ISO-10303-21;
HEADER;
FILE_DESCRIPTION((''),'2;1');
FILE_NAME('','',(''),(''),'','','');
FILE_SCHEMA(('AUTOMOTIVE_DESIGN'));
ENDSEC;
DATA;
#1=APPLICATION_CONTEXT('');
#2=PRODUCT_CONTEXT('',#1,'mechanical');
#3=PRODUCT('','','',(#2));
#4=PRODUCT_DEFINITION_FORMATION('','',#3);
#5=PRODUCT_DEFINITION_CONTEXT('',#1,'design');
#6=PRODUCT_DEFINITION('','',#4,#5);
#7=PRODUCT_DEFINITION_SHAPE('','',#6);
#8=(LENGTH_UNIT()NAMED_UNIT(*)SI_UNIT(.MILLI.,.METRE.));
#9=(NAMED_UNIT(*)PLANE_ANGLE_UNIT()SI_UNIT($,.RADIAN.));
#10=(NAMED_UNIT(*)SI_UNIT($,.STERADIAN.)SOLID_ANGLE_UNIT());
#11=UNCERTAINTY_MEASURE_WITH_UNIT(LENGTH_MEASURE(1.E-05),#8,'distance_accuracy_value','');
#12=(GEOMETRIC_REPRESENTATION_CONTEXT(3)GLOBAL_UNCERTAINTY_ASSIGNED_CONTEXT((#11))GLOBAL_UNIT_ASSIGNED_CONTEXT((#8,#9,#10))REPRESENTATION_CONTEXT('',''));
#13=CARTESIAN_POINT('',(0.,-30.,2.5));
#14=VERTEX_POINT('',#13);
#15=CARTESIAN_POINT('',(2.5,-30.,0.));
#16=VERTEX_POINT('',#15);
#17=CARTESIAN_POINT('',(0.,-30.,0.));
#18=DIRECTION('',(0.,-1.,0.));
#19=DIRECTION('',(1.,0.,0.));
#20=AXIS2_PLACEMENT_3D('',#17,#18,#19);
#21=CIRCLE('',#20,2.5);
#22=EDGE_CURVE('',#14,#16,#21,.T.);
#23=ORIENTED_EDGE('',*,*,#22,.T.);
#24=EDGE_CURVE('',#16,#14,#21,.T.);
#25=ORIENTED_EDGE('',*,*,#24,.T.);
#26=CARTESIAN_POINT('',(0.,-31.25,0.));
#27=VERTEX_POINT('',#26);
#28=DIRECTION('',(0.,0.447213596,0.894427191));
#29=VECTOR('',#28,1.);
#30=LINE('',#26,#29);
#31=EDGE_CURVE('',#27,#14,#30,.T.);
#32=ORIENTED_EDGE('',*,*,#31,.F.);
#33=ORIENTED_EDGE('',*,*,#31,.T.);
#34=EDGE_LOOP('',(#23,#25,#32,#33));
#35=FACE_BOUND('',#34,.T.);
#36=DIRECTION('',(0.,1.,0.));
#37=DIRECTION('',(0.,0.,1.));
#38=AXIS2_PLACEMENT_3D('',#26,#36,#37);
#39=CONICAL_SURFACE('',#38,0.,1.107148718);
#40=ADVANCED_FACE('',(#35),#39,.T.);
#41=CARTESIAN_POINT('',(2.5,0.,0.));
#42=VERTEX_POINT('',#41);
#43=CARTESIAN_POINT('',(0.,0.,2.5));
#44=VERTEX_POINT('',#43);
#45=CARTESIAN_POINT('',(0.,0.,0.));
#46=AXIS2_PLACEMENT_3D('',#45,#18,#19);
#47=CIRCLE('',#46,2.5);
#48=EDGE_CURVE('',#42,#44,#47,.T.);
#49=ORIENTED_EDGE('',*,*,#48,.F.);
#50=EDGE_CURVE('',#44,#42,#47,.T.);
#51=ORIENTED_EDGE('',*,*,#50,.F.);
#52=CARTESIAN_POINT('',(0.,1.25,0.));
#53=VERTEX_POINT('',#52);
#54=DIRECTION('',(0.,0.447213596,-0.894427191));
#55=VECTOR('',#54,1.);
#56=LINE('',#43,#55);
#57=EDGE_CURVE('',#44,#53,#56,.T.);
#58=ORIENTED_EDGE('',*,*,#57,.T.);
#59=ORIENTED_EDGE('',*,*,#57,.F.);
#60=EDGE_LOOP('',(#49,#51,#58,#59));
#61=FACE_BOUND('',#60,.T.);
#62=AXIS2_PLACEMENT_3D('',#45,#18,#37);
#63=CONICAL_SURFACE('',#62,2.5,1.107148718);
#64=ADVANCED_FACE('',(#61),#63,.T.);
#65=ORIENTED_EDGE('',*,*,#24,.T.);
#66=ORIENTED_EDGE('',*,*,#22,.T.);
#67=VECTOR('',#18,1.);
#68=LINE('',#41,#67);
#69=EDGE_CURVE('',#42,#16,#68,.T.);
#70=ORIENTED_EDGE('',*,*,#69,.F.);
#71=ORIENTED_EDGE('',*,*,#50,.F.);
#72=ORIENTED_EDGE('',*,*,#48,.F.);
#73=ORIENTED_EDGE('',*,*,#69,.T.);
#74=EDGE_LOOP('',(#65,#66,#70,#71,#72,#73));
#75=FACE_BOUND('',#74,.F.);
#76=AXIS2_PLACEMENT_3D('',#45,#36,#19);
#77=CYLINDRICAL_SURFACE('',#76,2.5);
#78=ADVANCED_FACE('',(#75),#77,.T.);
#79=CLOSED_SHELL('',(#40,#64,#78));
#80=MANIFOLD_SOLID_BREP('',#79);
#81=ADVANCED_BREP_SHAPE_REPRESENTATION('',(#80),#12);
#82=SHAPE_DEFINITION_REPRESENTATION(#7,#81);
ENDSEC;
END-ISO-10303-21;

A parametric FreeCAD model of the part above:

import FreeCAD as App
import Part
import Sketcher
from FreeCAD import Vector
Q = App.Units.Quantity


def add_polygon(sketch, points):
    """Adds a closed chain of lines whose ends are joined by coincident constraints."""
    first, n = sketch.GeometryCount, len(points)
    for a, b in zip(points, points[1:] + points[:1]):
        sketch.addGeometry(Part.LineSegment(App.Vector(*a, 0), App.Vector(*b, 0)), False)
    for i in range(n):
        sketch.addConstraint(Sketcher.Constraint("Coincident", first + i, 2, first + (i + 1) % n, 1))

doc = App.newDocument("Part")
body = doc.addObject("PartDesign::Body", "Body")

# Sketch on XZ plane
sketch1 = body.newObject("Sketcher::SketchObject", "Sketch")
sketch1.AttachmentSupport = (doc.getObject("XZ_Plane"), [""])
sketch1.MapMode = "FlatFace"
sketch1.addGeometry(Part.Circle(Vector(0, 0, 0), Vector(0, 0, 1), 2.5), False)
sketch1.addConstraint(Sketcher.Constraint("Coincident", 0, 3, -1, 1))
sketch1.addConstraint(Sketcher.Constraint("Diameter", 0, Q("5 mm")))
pad1 = body.newObject("PartDesign::Pad", "Pad")
pad1.Profile = sketch1
pad1.Length = 30

# Sketch on YZ plane
sketch2 = body.newObject("Sketcher::SketchObject", "Sketch001")
sketch2.AttachmentSupport = (doc.getObject("YZ_Plane"), [""])
sketch2.MapMode = "FlatFace"
add_polygon(sketch2, [(-30, 2.5), (-30, 0), (-31.2, 0)])  # lines 0-2
add_polygon(sketch2, [(1.2, 0), (0, 0), (0, 2.5)])  # lines 3-5
sketch2.addConstraint(Sketcher.Constraint("Vertical", 0))
sketch2.addConstraint(Sketcher.Constraint("Horizontal", 1))
sketch2.addConstraint(Sketcher.Constraint("Horizontal", 3))
sketch2.addConstraint(Sketcher.Constraint("Vertical", 4))
sketch2.addConstraint(Sketcher.Constraint("Coincident", 3, 2, -1, 1))
sketch2.addConstraint(Sketcher.Constraint("PointOnObject", 0, 2, -1))
sketch2.addConstraint(Sketcher.Constraint("Horizontal", 2, 2, 4, 2))
sketch2.addConstraint(Sketcher.Constraint("Equal", 1, 3))
sketch2.addConstraint(Sketcher.Constraint("DistanceY", 0, 2, 0, 1, Q("2.5 mm")))
sketch2.addConstraint(Sketcher.Constraint("DistanceX", 0, 2, -1, 1, Q("30 mm")))
sketch2.addConstraint(Sketcher.Constraint("DistanceX", 1, 2, 1, 1, Q("1.25 mm")))
revolution = body.newObject("PartDesign::Revolution", "Revolution")
revolution.Profile = sketch2
revolution.ReferenceAxis = (sketch2, ["H_Axis"])
revolution.Angle = 360

doc.recompute()
